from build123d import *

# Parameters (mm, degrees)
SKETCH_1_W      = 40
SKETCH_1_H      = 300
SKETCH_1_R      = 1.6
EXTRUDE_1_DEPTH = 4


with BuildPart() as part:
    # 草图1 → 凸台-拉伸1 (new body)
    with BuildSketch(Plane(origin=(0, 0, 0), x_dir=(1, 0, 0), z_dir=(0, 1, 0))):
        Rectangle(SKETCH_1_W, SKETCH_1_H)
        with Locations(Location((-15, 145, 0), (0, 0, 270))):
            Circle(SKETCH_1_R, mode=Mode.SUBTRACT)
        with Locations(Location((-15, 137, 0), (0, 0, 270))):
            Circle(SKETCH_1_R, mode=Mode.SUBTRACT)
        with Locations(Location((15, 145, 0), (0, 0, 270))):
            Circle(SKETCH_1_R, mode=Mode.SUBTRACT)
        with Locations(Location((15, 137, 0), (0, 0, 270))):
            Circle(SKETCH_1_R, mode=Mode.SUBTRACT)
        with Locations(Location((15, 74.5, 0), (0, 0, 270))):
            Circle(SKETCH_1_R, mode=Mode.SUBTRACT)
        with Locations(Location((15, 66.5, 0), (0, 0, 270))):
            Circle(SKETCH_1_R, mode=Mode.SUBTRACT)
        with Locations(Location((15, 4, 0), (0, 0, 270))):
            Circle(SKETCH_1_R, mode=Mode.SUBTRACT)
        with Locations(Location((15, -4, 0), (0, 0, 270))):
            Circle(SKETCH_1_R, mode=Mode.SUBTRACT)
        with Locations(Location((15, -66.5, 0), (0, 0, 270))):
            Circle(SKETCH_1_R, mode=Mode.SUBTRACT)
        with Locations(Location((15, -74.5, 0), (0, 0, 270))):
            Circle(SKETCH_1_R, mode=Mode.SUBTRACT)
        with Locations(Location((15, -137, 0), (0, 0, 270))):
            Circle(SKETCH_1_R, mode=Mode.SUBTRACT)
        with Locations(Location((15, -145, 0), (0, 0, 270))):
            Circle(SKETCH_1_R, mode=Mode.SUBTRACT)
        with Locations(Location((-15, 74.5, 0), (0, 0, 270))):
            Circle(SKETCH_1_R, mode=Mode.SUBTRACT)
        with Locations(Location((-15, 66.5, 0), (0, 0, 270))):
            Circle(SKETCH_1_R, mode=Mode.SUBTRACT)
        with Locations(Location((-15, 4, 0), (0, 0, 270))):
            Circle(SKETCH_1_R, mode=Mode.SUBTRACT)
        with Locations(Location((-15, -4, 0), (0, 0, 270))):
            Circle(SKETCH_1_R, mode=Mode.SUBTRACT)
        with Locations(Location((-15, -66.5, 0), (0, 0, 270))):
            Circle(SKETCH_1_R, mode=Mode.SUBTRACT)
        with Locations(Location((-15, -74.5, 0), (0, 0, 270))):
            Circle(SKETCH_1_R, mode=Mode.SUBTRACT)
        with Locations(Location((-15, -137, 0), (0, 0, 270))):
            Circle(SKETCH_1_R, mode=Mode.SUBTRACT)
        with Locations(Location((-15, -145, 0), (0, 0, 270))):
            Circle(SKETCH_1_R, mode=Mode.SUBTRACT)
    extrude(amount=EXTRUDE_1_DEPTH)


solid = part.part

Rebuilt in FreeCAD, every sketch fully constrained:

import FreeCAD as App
import Part
import Sketcher
from FreeCAD import Vector


def add_polygon(sketch, points):
    """Adds a closed chain of lines whose ends are joined by coincident constraints."""
    first, n = sketch.GeometryCount, len(points)
    for a, b in zip(points, points[1:] + points[:1]):
        sketch.addGeometry(Part.LineSegment(App.Vector(*a, 0), App.Vector(*b, 0)), False)
    for i in range(n):
        sketch.addConstraint(Sketcher.Constraint("Coincident", first + i, 2, first + (i + 1) % n, 1))

doc = App.newDocument("Part")
body = doc.addObject("PartDesign::Body", "Body")

sketch1 = body.newObject("Sketcher::SketchObject", "Sketch")
sketch1.AttachmentSupport = (doc.getObject("XZ_Plane"), [""])
sketch1.MapMode = "FlatFace"
add_polygon(sketch1, [(-20, -150), (-20, 150), (20, 150), (20, -150)])
sketch1.addGeometry(Part.Circle(Vector(-15, 145, 0), Vector(0, 0, 1), 1.6), False)
sketch1.addGeometry(Part.Circle(Vector(-15, 137, 0), Vector(0, 0, 1), 1.6), False)
sketch1.addGeometry(Part.Circle(Vector(-15, 74.5, 0), Vector(0, 0, 1), 1.6), False)
sketch1.addGeometry(Part.Circle(Vector(-15, 66.5, 0), Vector(0, 0, 1), 1.6), False)
sketch1.addGeometry(Part.Circle(Vector(-15, 4, 0), Vector(0, 0, 1), 1.6), False)
sketch1.addGeometry(Part.Circle(Vector(15, 145, 0), Vector(0, 0, 1), 1.6), False)
sketch1.addGeometry(Part.Circle(Vector(15, 137, 0), Vector(0, 0, 1), 1.6), False)
sketch1.addGeometry(Part.Circle(Vector(15, 74.5, 0), Vector(0, 0, 1), 1.6), False)
sketch1.addGeometry(Part.Circle(Vector(15, 66.5, 0), Vector(0, 0, 1), 1.6), False)
sketch1.addGeometry(Part.Circle(Vector(15, 4, 0), Vector(0, 0, 1), 1.6), False)
sketch1.addGeometry(Part.Circle(Vector(-15, -4, 0), Vector(0, 0, 1), 1.6), False)
sketch1.addGeometry(Part.Circle(Vector(-15, -66.5, 0), Vector(0, 0, 1), 1.6), False)
sketch1.addGeometry(Part.Circle(Vector(-15, -74.5, 0), Vector(0, 0, 1), 1.6), False)
sketch1.addGeometry(Part.Circle(Vector(-15, -137, 0), Vector(0, 0, 1), 1.6), False)
sketch1.addGeometry(Part.Circle(Vector(-15, -145, 0), Vector(0, 0, 1), 1.6), False)
sketch1.addGeometry(Part.Circle(Vector(15, -4, 0), Vector(0, 0, 1), 1.6), False)
sketch1.addGeometry(Part.Circle(Vector(15, -66.5, 0), Vector(0, 0, 1), 1.6), False)
sketch1.addGeometry(Part.Circle(Vector(15, -74.5, 0), Vector(0, 0, 1), 1.6), False)
sketch1.addGeometry(Part.Circle(Vector(15, -137, 0), Vector(0, 0, 1), 1.6), False)
sketch1.addGeometry(Part.Circle(Vector(15, -145, 0), Vector(0, 0, 1), 1.6), False)
sketch1.addConstraint([
    Sketcher.Constraint("Vertical", 0),
    Sketcher.Constraint("Horizontal", 1),
    Sketcher.Constraint("Vertical", 2),
    Sketcher.Constraint("Horizontal", 3),
    Sketcher.Constraint("Equal", 4, 5),
    Sketcher.Constraint("Equal", 5, 6),
    Sketcher.Constraint("Equal", 6, 7),
    Sketcher.Constraint("Equal", 7, 8),
    Sketcher.Constraint("Equal", 8, 9),
    Sketcher.Constraint("Equal", 9, 10),
    Sketcher.Constraint("Equal", 10, 11),
    Sketcher.Constraint("Equal", 11, 12),
    Sketcher.Constraint("Equal", 12, 13),
    Sketcher.Constraint("Equal", 13, 14),
    Sketcher.Constraint("Equal", 14, 15),
    Sketcher.Constraint("Equal", 15, 16),
    Sketcher.Constraint("Equal", 16, 17),
    Sketcher.Constraint("Equal", 17, 18),
    Sketcher.Constraint("Equal", 18, 19),
    Sketcher.Constraint("Equal", 19, 20),
    Sketcher.Constraint("Equal", 20, 21),
    Sketcher.Constraint("Equal", 21, 22),
    Sketcher.Constraint("Equal", 22, 23),
    Sketcher.Constraint("Symmetric", 13, 3, 14, 3, -1, 1),
    Sketcher.Constraint("Symmetric", 12, 3, 15, 3, -1, 1),
    Sketcher.Constraint("Symmetric", 11, 3, 16, 3, -1, 1),
    Sketcher.Constraint("Symmetric", 10, 3, 17, 3, -1, 1),
    Sketcher.Constraint("Symmetric", 9, 3, 18, 3, -1, 1),
    Sketcher.Constraint("Symmetric", 8, 3, 19, 3, -1, 1),
    Sketcher.Constraint("Symmetric", 7, 3, 20, 3, -1, 1),
    Sketcher.Constraint("Symmetric", 6, 3, 21, 3, -1, 1),
    Sketcher.Constraint("Symmetric", 5, 3, 22, 3, -1, 1),
    Sketcher.Constraint("Symmetric", 4, 3, 23, 3, -1, 1),
    Sketcher.Constraint("Symmetric", 0, 2, 2, 2, -1, 1),
    Sketcher.Constraint("Symmetric", 4, 3, 9, 3, -2),
    Sketcher.Constraint("Symmetric", 5, 3, 10, 3, -2),
    Sketcher.Constraint("Symmetric", 6, 3, 11, 3, -2),
    Sketcher.Constraint("Symmetric", 7, 3, 12, 3, -2),
    Sketcher.Constraint("Symmetric", 8, 3, 13, 3, -2),
    Sketcher.Constraint("Vertical", 4, 3, 5, 3),
    Sketcher.Constraint("Vertical", 5, 3, 6, 3),
    Sketcher.Constraint("Vertical", 6, 3, 7, 3),
    Sketcher.Constraint("Vertical", 7, 3, 8, 3),
    Sketcher.Constraint("Diameter", 4, 3.2),
    Sketcher.Constraint("DistanceX", 1, 1, 1, 2, 40.0),
    Sketcher.Constraint("DistanceY", 0, 1, 0, 2, 300.0),
    Sketcher.Constraint("DistanceX", 4, 3, -1, 1, 15.0),
    Sketcher.Constraint("DistanceY", -1, 1, 4, 3, 145.0),
    Sketcher.Constraint("DistanceY", -1, 1, 5, 3, 137.0),
    Sketcher.Constraint("DistanceY", -1, 1, 8, 3, 4.0),
    Sketcher.Constraint("DistanceY", 7, 3, 6, 3, 8.0),
    Sketcher.Constraint("DistanceY", 15, 3, 7, 3, 133.0),
])
pad1 = body.newObject("PartDesign::Pad", "Pad")
pad1.Profile = sketch1
pad1.Length = 4
pad1.Reversed = True

doc.recompute()
